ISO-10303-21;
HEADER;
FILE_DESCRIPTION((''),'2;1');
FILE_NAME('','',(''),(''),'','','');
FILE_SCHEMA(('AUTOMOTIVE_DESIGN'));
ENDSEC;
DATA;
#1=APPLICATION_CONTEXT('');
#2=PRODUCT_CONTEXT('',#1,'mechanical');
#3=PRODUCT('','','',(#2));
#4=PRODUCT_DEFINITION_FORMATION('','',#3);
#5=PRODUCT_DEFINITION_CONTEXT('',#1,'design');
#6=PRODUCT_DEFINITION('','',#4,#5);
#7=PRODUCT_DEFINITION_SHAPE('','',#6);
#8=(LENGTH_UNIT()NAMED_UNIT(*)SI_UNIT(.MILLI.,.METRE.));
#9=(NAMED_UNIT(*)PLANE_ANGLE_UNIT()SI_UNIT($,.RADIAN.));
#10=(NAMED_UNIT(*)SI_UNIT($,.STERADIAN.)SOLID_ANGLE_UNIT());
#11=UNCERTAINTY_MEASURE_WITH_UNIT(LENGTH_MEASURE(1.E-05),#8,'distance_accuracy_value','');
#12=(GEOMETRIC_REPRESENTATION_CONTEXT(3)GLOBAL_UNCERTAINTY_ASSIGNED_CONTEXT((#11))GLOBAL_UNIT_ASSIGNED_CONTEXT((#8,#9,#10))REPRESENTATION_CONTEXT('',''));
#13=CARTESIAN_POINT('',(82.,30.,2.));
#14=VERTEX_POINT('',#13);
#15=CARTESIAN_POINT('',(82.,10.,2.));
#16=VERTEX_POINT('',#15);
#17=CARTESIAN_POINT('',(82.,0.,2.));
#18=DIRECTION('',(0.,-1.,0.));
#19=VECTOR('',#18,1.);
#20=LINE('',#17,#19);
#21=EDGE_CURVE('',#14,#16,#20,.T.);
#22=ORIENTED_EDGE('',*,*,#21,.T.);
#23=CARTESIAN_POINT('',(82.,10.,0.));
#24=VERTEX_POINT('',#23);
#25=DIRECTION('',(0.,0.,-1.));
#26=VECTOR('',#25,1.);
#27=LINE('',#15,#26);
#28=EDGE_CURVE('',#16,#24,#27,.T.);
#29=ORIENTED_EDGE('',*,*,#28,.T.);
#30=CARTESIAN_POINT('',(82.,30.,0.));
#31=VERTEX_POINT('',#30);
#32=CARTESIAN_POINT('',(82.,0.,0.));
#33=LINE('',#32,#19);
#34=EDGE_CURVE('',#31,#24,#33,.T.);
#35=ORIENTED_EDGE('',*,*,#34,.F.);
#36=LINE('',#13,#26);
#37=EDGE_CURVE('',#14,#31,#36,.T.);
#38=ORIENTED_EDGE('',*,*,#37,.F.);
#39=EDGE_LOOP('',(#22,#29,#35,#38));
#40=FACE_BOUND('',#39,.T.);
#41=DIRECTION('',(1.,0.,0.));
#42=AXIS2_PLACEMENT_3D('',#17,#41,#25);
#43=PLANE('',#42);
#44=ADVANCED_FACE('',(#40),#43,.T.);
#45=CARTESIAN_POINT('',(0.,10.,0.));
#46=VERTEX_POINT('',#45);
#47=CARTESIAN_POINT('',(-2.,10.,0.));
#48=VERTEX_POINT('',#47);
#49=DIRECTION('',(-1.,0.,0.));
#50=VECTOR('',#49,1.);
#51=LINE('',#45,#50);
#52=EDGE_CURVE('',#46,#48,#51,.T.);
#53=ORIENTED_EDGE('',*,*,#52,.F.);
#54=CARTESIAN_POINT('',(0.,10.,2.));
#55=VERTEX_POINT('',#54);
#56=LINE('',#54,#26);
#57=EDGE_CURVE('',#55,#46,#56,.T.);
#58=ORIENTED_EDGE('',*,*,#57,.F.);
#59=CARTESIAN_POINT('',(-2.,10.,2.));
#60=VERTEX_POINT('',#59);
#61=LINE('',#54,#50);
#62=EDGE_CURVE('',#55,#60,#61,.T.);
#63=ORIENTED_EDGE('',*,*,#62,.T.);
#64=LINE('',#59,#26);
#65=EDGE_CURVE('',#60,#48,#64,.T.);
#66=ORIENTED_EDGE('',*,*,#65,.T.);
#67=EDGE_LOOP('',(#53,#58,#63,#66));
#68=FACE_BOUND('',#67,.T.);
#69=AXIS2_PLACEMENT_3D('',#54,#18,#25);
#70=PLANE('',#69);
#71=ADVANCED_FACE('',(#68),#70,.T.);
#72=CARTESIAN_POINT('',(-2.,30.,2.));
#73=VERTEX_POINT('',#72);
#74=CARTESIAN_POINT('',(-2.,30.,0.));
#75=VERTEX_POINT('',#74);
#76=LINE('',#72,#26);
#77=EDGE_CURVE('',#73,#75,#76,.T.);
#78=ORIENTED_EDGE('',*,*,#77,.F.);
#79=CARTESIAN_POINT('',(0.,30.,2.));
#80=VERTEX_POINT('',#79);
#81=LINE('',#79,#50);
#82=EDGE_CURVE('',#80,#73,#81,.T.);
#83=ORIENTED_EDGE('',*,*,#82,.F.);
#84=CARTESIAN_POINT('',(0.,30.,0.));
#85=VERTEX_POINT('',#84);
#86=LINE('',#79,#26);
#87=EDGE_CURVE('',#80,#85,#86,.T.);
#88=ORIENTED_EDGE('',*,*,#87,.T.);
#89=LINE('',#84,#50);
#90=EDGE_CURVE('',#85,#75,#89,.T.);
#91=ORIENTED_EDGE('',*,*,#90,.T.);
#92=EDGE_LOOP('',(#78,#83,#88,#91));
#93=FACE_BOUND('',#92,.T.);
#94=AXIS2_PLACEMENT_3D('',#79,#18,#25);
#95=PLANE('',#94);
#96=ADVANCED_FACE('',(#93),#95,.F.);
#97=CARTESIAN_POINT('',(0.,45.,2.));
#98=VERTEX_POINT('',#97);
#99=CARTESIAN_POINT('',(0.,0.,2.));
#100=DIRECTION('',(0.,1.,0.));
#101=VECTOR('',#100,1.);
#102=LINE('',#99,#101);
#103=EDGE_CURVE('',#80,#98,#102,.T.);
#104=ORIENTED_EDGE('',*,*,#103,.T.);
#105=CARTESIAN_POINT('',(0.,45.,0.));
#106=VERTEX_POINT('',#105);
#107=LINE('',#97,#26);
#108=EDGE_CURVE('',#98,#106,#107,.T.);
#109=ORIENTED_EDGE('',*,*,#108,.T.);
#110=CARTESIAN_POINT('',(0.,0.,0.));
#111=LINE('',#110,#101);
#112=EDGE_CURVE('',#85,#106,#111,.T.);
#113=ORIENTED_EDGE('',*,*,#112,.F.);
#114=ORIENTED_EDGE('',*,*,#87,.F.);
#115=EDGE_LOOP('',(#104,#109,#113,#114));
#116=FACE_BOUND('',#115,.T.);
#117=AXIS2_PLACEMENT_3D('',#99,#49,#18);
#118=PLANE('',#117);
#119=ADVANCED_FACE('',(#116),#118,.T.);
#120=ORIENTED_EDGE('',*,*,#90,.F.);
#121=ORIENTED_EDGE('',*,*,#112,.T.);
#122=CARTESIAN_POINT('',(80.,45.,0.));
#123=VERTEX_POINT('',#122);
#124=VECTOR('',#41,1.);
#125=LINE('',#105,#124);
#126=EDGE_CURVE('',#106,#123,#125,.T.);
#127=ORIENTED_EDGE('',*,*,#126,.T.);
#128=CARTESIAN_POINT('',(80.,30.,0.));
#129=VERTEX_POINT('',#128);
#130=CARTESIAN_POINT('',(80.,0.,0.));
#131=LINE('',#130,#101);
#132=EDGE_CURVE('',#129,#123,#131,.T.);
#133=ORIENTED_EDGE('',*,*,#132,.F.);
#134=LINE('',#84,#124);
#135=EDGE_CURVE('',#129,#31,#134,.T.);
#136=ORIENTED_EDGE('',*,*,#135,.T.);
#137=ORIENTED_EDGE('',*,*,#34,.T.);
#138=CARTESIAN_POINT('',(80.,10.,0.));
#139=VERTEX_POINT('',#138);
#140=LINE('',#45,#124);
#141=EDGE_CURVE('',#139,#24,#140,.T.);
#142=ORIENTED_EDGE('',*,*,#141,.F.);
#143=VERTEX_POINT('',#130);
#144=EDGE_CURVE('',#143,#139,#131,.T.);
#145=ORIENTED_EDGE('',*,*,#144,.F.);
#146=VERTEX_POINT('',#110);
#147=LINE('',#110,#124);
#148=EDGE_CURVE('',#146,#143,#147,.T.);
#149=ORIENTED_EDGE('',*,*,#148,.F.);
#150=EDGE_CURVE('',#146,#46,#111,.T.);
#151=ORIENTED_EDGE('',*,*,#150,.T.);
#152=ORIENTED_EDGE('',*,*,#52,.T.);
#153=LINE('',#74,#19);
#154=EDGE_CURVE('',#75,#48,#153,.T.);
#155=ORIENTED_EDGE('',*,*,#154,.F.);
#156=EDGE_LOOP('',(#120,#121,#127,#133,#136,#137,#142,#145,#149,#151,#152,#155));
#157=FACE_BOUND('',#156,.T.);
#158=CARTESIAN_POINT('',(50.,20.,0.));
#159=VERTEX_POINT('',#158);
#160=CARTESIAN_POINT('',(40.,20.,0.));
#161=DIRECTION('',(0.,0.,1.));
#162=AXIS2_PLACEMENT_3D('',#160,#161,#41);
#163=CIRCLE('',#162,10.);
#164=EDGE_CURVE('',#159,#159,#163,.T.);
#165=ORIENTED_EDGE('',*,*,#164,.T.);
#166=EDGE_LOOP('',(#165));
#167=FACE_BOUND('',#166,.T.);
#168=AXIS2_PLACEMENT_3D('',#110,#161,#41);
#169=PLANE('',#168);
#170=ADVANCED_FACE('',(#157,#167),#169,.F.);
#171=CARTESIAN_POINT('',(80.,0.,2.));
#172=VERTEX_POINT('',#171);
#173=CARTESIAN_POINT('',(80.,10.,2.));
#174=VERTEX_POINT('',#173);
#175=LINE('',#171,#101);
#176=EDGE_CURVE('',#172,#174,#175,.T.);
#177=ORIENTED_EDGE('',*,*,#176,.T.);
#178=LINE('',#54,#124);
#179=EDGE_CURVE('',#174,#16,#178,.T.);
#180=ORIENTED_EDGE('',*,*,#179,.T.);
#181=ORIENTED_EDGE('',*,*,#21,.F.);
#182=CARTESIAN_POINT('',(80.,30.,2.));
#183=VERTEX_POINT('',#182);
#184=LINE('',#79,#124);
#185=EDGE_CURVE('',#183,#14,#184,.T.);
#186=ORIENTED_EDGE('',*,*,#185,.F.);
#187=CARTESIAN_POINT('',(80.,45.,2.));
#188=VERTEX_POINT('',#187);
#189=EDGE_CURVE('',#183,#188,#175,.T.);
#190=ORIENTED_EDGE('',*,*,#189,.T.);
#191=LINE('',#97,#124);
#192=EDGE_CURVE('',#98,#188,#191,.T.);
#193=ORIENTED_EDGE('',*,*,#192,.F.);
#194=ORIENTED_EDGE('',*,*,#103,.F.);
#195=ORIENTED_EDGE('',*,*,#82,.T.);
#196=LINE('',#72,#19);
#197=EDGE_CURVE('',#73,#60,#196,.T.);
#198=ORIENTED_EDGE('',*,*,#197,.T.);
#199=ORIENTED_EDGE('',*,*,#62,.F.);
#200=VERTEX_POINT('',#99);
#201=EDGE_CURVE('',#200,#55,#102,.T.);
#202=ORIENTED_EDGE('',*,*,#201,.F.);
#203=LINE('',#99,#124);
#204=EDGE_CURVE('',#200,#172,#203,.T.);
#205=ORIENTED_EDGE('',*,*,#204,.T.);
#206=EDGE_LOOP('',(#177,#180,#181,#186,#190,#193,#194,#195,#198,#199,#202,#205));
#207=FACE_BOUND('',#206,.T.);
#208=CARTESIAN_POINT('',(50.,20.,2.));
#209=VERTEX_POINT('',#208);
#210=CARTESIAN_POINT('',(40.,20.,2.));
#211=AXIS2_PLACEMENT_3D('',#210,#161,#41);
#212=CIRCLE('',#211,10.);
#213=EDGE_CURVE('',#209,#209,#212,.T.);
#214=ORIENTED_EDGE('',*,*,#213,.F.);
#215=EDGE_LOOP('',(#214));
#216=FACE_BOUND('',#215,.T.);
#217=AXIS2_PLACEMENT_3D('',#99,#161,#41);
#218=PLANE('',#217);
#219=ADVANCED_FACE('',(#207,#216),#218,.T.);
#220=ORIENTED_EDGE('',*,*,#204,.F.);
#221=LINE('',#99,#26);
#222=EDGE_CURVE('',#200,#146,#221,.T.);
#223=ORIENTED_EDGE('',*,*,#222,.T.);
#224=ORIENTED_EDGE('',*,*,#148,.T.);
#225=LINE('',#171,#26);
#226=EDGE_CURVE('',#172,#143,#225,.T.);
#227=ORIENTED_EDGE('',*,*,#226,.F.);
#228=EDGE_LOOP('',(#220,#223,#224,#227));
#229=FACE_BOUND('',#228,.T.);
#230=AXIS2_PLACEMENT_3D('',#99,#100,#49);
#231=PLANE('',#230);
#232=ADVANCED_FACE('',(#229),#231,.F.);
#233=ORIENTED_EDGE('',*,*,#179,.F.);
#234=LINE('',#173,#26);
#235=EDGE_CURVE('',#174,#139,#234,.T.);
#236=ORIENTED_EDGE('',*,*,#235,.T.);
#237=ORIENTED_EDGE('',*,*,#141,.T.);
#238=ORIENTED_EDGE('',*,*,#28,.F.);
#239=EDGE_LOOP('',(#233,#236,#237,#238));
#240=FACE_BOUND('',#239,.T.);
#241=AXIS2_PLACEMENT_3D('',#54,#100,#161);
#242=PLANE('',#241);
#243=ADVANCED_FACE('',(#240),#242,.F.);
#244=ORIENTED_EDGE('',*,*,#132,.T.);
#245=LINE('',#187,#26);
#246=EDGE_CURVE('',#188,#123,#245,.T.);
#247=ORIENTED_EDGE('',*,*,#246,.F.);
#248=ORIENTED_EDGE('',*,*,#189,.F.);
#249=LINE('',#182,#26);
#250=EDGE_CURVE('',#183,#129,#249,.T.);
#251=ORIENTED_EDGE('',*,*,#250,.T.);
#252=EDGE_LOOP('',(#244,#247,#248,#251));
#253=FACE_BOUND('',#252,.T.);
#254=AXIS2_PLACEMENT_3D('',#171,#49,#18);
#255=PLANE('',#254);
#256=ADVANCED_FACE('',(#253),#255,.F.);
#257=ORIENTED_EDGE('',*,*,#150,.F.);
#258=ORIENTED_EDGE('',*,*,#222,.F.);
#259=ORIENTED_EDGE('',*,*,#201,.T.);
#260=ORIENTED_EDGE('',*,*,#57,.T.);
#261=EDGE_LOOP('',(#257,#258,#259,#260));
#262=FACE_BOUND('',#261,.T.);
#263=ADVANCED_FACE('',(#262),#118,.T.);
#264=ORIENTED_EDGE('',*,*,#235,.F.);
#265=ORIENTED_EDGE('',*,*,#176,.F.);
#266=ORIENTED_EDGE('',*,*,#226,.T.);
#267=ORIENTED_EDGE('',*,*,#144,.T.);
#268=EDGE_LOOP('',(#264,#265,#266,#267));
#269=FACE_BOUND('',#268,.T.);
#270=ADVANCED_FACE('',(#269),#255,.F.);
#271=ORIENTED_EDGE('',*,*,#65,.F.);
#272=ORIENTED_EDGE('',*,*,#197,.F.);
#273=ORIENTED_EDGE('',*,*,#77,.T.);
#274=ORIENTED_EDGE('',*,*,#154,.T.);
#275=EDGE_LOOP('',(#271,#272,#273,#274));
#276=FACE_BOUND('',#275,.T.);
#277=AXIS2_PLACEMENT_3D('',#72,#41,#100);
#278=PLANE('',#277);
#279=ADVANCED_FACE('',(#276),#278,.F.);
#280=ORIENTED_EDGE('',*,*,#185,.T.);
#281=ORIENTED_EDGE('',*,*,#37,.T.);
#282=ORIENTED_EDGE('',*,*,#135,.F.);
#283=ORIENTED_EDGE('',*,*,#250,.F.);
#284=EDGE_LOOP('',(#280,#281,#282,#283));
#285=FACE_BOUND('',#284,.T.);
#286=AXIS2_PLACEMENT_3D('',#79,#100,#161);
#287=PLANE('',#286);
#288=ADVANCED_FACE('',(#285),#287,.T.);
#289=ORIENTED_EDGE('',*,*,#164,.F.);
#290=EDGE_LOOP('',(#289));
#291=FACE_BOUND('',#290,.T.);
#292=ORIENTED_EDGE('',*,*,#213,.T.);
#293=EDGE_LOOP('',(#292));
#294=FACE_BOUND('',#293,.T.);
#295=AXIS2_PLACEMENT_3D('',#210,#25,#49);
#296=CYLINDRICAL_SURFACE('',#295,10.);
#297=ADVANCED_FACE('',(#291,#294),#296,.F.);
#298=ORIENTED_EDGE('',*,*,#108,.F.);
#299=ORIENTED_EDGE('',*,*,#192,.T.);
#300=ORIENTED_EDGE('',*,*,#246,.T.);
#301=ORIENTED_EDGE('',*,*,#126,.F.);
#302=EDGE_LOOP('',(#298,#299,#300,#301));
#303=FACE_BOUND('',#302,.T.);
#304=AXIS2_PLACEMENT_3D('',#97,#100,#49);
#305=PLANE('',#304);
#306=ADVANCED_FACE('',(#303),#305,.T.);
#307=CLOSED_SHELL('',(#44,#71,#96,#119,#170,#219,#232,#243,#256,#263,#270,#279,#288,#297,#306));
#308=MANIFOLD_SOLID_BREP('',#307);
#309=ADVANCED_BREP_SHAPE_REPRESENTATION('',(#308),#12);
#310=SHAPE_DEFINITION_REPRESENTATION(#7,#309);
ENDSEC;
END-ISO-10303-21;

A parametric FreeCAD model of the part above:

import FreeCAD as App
import Part
import Sketcher

V = App.Vector
Q = App.Units.Quantity

doc = App.newDocument("Part")
body = doc.addObject("PartDesign::Body", "Body")

sketch1 = doc.addObject("Sketcher::SketchObject", "Sketch")
body.addObject(sketch1)
sketch1.AttachmentSupport = (doc.XY_Plane, [""])
sketch1.MapMode = "FlatFace"
sketch1.addGeometry(Part.LineSegment(V(0, 10, 0), V(0, 0, 0)), False)
sketch1.addGeometry(Part.LineSegment(V(0, 0, 0), V(80, 0, 0)), False)
sketch1.addGeometry(Part.LineSegment(V(80, 0, 0), V(80, 10, 0)), False)
sketch1.addGeometry(Part.LineSegment(V(80, 10, 0), V(82, 10, 0)), False)
sketch1.addGeometry(Part.LineSegment(V(82, 10, 0), V(82, 30, 0)), False)
sketch1.addGeometry(Part.LineSegment(V(82, 30, 0), V(80, 30, 0)), False)
sketch1.addGeometry(Part.LineSegment(V(80, 30, 0), V(80, 45, 0)), False)
sketch1.addGeometry(Part.LineSegment(V(80, 45, 0), V(0, 45, 0)), False)
sketch1.addGeometry(Part.LineSegment(V(0, 45, 0), V(0, 30, 0)), False)
sketch1.addGeometry(Part.LineSegment(V(0, 30, 0), V(-2, 30, 0)), False)
sketch1.addGeometry(Part.LineSegment(V(-2, 30, 0), V(-2, 10, 0)), False)
sketch1.addGeometry(Part.LineSegment(V(-2, 10, 0), V(0, 10, 0)), False)
sketch1.addGeometry(Part.Circle(V(40, 20, 0), V(0, 0, 1), 10), False)
sketch1.addConstraint(Sketcher.Constraint("Coincident", 0, 2, 1, 1))
sketch1.addConstraint(Sketcher.Constraint("Coincident", 1, 2, 2, 1))
sketch1.addConstraint(Sketcher.Constraint("Coincident", 2, 2, 3, 1))
sketch1.addConstraint(Sketcher.Constraint("Coincident", 3, 2, 4, 1))
sketch1.addConstraint(Sketcher.Constraint("Coincident", 4, 2, 5, 1))
sketch1.addConstraint(Sketcher.Constraint("Coincident", 5, 2, 6, 1))
sketch1.addConstraint(Sketcher.Constraint("Coincident", 6, 2, 7, 1))
sketch1.addConstraint(Sketcher.Constraint("Coincident", 7, 2, 8, 1))
sketch1.addConstraint(Sketcher.Constraint("Coincident", 8, 2, 9, 1))
sketch1.addConstraint(Sketcher.Constraint("Coincident", 9, 2, 10, 1))
sketch1.addConstraint(Sketcher.Constraint("Coincident", 10, 2, 11, 1))
sketch1.addConstraint(Sketcher.Constraint("Coincident", 11, 2, 0, 1))
sketch1.addConstraint(Sketcher.Constraint("Vertical", 0))
sketch1.addConstraint(Sketcher.Constraint("Horizontal", 1))
sketch1.addConstraint(Sketcher.Constraint("Vertical", 2))
sketch1.addConstraint(Sketcher.Constraint("Horizontal", 3))
sketch1.addConstraint(Sketcher.Constraint("Vertical", 4))
sketch1.addConstraint(Sketcher.Constraint("Horizontal", 5))
sketch1.addConstraint(Sketcher.Constraint("Vertical", 6))
sketch1.addConstraint(Sketcher.Constraint("Horizontal", 7))
sketch1.addConstraint(Sketcher.Constraint("Vertical", 8))
sketch1.addConstraint(Sketcher.Constraint("Horizontal", 9))
sketch1.addConstraint(Sketcher.Constraint("Vertical", 10))
sketch1.addConstraint(Sketcher.Constraint("Horizontal", 11))
sketch1.addConstraint(Sketcher.Constraint("Coincident", 0, 2, -1, 1))
sketch1.addConstraint(Sketcher.Constraint("PointOnObject", 7, 2, -2))
sketch1.addConstraint(Sketcher.Constraint("Horizontal", 5, 2, 8, 2))
sketch1.addConstraint(Sketcher.Constraint("Horizontal", 3, 2, 10, 2))
sketch1.addConstraint(Sketcher.Constraint("Vertical", 2, 2, 5, 2))
sketch1.addConstraint(Sketcher.Constraint("Equal", 5, 9))
sketch1.addConstraint(Sketcher.Constraint("Diameter", 12, Q("20 mm")))
sketch1.addConstraint(Sketcher.Constraint("DistanceX", 1, 1, 1, 2, Q("80 mm")))
sketch1.addConstraint(Sketcher.Constraint("DistanceX", 3, 1, 3, 2, Q("2 mm")))
sketch1.addConstraint(Sketcher.Constraint("DistanceY", 0, 2, 0, 1, Q("10 mm")))
sketch1.addConstraint(Sketcher.Constraint("DistanceY", 4, 1, 4, 2, Q("20 mm")))
sketch1.addConstraint(Sketcher.Constraint("DistanceY", 6, 1, 6, 2, Q("15 mm")))
sketch1.addConstraint(Sketcher.Constraint("DistanceX", -1, 1, 12, 3, Q("40 mm")))
sketch1.addConstraint(Sketcher.Constraint("DistanceY", -1, 1, 12, 3, Q("20 mm")))
pad1 = doc.addObject("PartDesign::Pad", "Pad")
body.addObject(pad1)
pad1.Profile = sketch1
pad1.Length = 2

doc.recompute()
